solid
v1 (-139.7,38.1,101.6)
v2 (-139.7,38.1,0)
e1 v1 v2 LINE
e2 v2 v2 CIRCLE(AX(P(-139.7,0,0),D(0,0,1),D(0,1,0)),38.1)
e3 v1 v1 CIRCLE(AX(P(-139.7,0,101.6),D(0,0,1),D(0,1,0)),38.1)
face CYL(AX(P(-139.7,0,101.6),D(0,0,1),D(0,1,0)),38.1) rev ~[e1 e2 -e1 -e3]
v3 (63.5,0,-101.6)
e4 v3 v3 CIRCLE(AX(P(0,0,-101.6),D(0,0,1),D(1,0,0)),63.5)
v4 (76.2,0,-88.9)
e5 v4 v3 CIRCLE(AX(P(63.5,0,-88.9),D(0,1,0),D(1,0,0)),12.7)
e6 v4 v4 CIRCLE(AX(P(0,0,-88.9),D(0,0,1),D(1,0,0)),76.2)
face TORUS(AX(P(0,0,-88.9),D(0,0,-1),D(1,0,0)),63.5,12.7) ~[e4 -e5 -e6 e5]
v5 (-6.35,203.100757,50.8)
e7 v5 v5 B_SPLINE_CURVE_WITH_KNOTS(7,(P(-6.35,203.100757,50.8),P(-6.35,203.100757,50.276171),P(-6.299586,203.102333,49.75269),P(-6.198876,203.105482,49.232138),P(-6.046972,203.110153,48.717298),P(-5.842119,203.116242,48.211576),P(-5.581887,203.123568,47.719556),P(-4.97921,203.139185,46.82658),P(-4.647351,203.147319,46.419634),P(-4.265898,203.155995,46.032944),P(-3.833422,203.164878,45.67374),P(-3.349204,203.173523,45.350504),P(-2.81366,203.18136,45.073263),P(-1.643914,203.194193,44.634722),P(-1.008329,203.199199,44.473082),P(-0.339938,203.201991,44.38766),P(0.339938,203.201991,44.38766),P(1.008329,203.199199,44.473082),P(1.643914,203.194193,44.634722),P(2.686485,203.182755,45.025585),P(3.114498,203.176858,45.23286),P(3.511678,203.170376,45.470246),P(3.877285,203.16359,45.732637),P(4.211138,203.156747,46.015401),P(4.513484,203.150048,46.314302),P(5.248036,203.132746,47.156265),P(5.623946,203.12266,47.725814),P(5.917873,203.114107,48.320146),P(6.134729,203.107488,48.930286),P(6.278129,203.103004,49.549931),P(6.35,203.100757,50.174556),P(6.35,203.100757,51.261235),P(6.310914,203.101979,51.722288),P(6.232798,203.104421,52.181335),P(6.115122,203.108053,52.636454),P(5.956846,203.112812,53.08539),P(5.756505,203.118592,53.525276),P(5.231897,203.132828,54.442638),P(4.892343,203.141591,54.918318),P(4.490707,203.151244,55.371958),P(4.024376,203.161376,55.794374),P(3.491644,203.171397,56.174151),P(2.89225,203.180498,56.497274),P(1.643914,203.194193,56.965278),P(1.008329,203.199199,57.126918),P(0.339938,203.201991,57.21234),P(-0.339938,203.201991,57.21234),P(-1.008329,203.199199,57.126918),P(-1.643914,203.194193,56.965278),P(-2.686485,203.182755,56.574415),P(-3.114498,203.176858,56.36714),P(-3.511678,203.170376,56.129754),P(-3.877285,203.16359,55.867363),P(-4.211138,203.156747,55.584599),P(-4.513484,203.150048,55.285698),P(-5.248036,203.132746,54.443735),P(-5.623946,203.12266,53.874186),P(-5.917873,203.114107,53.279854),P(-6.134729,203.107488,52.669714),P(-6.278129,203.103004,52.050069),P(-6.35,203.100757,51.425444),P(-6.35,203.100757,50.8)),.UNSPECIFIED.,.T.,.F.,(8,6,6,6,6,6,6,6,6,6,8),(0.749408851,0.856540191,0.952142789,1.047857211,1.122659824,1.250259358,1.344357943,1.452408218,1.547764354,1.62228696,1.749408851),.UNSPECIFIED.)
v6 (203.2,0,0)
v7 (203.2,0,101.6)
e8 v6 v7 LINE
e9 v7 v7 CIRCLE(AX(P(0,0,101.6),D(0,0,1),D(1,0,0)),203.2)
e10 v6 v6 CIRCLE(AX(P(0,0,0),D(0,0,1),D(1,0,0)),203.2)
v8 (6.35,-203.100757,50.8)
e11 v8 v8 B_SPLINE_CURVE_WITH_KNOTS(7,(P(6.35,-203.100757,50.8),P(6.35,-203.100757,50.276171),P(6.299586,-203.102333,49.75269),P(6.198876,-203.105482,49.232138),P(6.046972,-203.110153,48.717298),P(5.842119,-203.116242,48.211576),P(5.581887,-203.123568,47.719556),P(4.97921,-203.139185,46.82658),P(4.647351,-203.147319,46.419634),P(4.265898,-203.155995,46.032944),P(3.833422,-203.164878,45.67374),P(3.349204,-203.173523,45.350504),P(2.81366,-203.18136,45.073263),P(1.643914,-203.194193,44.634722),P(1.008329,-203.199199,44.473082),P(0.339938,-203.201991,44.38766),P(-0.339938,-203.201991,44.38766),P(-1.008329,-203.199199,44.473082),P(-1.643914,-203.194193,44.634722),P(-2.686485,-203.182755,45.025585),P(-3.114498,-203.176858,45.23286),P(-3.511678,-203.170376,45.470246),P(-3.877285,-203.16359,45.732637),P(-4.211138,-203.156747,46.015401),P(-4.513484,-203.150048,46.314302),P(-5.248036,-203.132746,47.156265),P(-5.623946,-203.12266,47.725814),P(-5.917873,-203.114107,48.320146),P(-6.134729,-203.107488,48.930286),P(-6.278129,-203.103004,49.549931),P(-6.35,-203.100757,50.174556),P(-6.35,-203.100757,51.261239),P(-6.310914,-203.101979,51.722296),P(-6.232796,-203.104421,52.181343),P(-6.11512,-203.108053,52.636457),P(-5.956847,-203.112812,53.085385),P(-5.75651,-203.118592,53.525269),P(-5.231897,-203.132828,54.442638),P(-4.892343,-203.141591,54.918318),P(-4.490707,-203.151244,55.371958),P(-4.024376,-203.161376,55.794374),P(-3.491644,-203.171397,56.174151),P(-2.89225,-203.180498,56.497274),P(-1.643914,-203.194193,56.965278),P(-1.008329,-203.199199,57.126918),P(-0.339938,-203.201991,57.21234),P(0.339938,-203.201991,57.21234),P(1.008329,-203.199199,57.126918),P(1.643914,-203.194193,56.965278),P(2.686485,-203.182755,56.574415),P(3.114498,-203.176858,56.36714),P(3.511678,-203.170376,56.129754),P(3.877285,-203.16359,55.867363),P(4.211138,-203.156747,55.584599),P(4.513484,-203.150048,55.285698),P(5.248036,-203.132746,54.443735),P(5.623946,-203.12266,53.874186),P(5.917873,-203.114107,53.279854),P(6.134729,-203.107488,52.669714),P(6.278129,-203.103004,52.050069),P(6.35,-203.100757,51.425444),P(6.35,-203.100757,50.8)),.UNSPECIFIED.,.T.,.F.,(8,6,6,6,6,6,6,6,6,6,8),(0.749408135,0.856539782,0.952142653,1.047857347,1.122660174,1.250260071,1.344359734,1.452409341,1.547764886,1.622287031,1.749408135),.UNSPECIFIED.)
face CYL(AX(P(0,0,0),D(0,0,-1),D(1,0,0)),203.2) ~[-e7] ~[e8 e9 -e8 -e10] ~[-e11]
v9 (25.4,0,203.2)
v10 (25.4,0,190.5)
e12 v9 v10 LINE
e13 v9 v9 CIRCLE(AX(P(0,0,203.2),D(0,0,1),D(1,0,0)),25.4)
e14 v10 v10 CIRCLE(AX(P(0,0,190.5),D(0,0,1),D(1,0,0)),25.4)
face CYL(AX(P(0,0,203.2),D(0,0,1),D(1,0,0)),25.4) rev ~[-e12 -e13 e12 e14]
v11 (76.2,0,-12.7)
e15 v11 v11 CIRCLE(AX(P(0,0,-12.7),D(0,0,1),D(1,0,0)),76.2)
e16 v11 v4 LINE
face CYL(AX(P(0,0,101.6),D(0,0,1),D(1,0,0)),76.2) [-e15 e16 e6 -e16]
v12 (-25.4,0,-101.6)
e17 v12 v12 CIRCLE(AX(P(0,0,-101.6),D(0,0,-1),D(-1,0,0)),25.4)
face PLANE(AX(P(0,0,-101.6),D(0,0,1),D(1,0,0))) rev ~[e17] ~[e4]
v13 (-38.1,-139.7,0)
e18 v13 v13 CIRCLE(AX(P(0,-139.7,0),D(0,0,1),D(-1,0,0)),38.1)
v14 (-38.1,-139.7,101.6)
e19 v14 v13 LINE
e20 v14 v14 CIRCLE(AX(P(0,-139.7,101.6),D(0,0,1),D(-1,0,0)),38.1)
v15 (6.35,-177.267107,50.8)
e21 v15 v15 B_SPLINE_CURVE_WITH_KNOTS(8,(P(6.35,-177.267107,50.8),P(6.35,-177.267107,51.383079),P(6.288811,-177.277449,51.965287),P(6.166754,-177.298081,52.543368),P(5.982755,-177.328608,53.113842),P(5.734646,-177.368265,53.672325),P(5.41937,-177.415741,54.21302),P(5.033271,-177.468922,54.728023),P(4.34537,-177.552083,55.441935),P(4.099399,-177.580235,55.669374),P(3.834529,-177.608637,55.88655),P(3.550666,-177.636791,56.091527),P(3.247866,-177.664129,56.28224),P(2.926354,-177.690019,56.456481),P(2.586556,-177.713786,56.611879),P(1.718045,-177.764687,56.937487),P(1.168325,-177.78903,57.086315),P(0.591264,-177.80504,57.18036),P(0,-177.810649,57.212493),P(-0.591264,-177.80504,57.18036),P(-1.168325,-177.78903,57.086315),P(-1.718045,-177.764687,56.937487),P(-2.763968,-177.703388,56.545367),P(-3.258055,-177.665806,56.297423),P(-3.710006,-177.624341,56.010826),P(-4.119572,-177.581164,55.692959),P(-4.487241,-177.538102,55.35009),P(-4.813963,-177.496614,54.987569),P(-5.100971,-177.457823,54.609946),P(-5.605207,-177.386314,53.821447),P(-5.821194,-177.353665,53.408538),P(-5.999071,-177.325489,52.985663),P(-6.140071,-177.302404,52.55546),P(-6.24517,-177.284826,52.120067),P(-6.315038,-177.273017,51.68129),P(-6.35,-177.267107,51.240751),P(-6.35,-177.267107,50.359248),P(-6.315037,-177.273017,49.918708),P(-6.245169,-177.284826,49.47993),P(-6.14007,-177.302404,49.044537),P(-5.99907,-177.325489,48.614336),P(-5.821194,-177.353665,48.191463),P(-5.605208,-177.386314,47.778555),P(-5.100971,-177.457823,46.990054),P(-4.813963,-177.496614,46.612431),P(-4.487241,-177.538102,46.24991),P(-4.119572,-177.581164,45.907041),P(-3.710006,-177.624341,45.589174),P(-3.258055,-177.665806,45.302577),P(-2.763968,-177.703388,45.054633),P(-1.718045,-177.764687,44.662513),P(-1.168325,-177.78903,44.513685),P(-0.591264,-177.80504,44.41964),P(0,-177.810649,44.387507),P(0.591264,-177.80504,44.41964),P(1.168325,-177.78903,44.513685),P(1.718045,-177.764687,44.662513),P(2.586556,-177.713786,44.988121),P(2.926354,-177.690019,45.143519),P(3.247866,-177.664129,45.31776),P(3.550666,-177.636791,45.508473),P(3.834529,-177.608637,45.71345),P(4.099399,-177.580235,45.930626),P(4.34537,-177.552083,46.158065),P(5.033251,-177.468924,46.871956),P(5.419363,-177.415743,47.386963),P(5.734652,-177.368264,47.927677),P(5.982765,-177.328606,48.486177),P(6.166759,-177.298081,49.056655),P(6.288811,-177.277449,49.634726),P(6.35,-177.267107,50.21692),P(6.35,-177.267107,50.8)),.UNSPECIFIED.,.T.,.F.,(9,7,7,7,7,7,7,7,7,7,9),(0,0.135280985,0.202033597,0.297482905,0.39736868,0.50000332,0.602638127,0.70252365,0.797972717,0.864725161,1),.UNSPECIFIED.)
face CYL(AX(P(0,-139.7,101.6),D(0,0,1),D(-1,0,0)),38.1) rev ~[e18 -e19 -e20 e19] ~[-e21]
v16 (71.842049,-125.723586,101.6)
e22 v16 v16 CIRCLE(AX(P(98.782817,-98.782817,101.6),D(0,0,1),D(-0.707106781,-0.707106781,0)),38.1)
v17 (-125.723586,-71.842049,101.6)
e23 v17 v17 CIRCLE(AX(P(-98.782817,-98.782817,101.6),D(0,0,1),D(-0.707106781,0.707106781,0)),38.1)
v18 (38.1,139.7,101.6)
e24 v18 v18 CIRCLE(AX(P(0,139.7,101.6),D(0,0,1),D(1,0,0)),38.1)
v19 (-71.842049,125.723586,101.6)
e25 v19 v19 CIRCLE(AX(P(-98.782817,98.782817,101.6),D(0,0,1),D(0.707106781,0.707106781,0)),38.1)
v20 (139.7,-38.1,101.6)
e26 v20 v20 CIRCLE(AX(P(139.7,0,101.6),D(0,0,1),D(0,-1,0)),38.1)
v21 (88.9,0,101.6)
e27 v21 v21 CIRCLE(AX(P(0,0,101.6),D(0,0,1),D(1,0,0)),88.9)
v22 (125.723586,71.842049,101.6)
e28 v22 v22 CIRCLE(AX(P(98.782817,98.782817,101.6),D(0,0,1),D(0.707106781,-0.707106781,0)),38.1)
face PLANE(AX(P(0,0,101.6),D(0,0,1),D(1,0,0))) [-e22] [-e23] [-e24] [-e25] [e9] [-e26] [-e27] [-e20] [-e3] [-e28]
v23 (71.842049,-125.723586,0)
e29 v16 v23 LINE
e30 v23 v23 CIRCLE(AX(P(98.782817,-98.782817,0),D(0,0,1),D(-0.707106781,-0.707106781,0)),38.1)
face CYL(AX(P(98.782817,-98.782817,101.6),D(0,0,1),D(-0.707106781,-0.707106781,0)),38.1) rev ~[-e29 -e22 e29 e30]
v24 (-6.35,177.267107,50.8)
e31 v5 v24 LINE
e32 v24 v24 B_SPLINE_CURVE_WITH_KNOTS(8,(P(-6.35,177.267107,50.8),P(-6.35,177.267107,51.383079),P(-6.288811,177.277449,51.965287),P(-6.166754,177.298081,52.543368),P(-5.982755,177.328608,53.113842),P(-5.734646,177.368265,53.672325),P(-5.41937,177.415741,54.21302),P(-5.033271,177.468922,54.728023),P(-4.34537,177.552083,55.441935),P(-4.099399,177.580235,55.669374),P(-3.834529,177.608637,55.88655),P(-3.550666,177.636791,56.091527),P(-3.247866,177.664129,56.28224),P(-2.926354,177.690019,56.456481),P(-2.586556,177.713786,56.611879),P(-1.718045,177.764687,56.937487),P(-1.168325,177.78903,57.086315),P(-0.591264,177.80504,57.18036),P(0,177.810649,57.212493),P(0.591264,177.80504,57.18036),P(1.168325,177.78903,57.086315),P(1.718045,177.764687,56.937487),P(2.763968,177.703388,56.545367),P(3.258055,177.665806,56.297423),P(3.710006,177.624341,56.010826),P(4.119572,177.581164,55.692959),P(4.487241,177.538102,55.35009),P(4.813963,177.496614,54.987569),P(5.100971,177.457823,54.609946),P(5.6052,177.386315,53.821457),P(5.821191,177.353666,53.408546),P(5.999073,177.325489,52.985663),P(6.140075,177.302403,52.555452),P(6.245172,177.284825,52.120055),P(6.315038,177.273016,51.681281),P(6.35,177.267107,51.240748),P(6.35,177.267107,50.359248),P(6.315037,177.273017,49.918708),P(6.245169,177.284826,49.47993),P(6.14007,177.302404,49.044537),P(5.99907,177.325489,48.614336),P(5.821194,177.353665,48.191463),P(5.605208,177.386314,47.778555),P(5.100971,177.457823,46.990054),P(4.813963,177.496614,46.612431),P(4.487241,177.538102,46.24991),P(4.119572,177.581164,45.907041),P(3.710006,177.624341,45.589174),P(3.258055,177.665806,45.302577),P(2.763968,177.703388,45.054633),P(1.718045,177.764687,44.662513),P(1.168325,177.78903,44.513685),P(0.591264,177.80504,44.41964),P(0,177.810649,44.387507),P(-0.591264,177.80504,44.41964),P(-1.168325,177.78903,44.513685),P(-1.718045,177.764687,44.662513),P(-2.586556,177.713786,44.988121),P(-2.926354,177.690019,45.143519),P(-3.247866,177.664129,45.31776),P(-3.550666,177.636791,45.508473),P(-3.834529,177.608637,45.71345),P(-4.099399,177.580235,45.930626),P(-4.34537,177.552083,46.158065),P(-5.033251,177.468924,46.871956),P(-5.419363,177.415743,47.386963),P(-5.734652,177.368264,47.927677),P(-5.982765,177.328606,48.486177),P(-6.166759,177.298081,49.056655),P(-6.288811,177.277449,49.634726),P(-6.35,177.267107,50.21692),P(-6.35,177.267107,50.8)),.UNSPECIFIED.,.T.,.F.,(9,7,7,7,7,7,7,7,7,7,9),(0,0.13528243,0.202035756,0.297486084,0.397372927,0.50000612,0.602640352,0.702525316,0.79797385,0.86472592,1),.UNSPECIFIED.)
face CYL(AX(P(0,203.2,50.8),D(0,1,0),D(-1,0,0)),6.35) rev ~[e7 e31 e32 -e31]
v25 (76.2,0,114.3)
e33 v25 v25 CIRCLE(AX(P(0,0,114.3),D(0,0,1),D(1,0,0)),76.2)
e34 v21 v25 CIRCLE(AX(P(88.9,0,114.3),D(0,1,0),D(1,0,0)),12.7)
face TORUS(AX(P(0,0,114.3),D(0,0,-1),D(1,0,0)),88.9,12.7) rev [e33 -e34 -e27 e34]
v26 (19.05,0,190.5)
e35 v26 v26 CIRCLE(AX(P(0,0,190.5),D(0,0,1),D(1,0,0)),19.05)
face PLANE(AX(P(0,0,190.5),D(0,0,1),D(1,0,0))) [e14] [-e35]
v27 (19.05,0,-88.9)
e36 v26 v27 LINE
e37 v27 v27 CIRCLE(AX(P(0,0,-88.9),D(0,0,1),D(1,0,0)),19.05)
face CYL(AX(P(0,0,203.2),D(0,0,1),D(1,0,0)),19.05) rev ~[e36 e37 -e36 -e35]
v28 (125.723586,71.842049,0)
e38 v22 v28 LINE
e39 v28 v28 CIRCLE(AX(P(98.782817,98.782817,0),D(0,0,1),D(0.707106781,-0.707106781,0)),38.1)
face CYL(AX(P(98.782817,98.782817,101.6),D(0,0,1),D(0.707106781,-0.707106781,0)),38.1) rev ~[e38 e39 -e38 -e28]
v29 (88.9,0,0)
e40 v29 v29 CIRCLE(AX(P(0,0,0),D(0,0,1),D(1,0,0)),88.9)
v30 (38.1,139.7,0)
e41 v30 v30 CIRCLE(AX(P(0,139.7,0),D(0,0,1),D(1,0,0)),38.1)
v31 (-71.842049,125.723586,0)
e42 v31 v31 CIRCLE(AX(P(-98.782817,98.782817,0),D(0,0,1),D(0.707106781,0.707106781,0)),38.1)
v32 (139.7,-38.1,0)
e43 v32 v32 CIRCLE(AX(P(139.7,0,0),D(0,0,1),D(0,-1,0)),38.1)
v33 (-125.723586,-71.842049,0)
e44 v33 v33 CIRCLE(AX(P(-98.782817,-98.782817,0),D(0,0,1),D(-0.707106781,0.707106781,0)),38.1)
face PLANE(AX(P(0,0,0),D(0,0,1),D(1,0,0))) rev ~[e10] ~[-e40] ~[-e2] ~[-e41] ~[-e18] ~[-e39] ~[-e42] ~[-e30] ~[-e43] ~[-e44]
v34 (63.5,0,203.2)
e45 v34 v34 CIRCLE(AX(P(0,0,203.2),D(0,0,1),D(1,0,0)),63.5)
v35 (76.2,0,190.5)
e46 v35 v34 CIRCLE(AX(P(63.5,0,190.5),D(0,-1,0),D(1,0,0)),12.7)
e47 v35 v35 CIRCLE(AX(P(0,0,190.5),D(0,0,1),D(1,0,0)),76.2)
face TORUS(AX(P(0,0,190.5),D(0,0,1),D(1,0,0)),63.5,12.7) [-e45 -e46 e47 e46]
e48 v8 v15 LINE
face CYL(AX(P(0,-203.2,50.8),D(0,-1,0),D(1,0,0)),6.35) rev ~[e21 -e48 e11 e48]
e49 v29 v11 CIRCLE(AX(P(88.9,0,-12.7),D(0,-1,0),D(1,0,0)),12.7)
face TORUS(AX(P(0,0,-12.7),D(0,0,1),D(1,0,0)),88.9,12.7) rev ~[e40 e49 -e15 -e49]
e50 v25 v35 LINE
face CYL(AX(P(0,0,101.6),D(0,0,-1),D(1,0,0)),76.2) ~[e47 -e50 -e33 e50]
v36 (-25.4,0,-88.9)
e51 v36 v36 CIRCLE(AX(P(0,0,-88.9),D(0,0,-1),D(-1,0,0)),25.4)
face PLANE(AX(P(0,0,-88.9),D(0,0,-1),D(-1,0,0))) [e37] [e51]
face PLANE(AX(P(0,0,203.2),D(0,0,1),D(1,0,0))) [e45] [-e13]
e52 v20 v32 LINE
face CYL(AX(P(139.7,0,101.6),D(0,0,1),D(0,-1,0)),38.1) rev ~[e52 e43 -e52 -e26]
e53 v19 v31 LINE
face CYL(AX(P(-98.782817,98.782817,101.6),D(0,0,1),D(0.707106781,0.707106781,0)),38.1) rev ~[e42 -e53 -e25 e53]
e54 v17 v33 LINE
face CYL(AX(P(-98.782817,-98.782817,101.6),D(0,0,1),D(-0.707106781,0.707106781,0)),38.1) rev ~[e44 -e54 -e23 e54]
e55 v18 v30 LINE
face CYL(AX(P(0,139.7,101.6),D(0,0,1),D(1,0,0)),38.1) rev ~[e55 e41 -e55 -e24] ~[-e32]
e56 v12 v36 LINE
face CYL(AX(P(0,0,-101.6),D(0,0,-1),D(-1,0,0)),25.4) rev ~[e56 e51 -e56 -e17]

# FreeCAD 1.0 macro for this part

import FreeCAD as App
import Part
import Sketcher
Q = App.Units.Quantity


def edges_at(feature, points):
    """Names of the edges that pass closest to the given points."""
    edges = feature.Shape.Edges
    near = lambda p: min(range(len(edges)), key=lambda i: edges[i].distToShape(Part.Vertex(*p))[0])
    return sorted({f"Edge{near(p) + 1}" for p in points})

doc = App.newDocument("Part")
body = doc.addObject("PartDesign::Body", "Body")

sketch1 = body.newObject("Sketcher::SketchObject", "Sketch")
sketch1.AttachmentSupport = (doc.getObject("XY_Plane"), [""])
sketch1.MapMode = "FlatFace"
sketch1.addGeometry(Part.Circle(App.Vector(0, 0, 0), App.Vector(0, 0, 1), 203), False)
sketch1.addConstraint([
    Sketcher.Constraint("Coincident", 0, 3, -1, 1),
    Sketcher.Constraint("Diameter", 0, Q("16 in")),
])
pad1 = body.newObject("PartDesign::Pad", "Pad")
pad1.Profile = sketch1
pad1.Length = Q("4 in")

sketch2 = body.newObject("Sketcher::SketchObject", "Sketch001")
sketch2.AttachmentSupport = (doc.getObject("XY_Plane"), [""])
sketch2.MapMode = "FlatFace"
sketch2.AttachmentOffset = App.Placement(App.Vector(0, 0, 4 * 25.4), App.Rotation())
sketch2.addGeometry(Part.Circle(App.Vector(0, 0, 0), App.Vector(0, 0, 1), 76), False)
sketch2.addConstraint([
    Sketcher.Constraint("Coincident", 0, 3, -1, 1),
    Sketcher.Constraint("Diameter", 0, Q("6 in")),
])
pad2 = body.newObject("PartDesign::Pad", "Pad001")
pad2.Profile = sketch2
pad2.Type = "TwoLengths"
pad2.Length = Q("4 in")
pad2.Length2 = Q("8 in")

sketch3 = body.newObject("Sketcher::SketchObject", "Sketch002")
sketch3.AttachmentSupport = (doc.getObject("XY_Plane"), [""])
sketch3.MapMode = "FlatFace"
sketch3.AttachmentOffset = App.Placement(App.Vector(0, 0, 8 * 25.4), App.Rotation())
sketch3.addGeometry(Part.Circle(App.Vector(0, 0, 0), App.Vector(0, 0, 1), 19), False)
sketch3.addConstraint([
    Sketcher.Constraint("Coincident", 0, 3, -1, 1),
    Sketcher.Constraint("Diameter", 0, Q("1.5 in")),
])
pocket1 = body.newObject("PartDesign::Pocket", "Pocket")
pocket1.Profile = sketch3
pocket1.Type = "ThroughAll"

sketch4 = body.newObject("Sketcher::SketchObject", "Sketch003")
sketch4.AttachmentSupport = (doc.getObject("XY_Plane"), [""])
sketch4.MapMode = "FlatFace"
sketch4.AttachmentOffset = App.Placement(App.Vector(0, 0, 4 * 25.4), App.Rotation())
sketch4.addGeometry(Part.Circle(App.Vector(0, 140, 0), App.Vector(0, 0, 1), 38), False)
sketch4.addConstraint([
    Sketcher.Constraint("PointOnObject", 0, 3, -2),
    Sketcher.Constraint("Diameter", 0, Q("3 in")),
    Sketcher.Constraint("DistanceY", -1, 1, 0, 3, Q("5.5 in")),
])
pocket2 = body.newObject("PartDesign::Pocket", "Pocket001")
pocket2.Profile = sketch4
pocket2.Length = Q("4 in")
doc.recompute()

polarpattern = body.newObject("PartDesign::PolarPattern", "PolarPattern")
polarpattern.Originals = [pocket2]
polarpattern.Axis = (doc.getObject("Z_Axis"), [""])
polarpattern.Angle = 360
polarpattern.Occurrences = 8
body.Tip = polarpattern
doc.recompute()

fillet = body.newObject("PartDesign::Fillet", "Fillet")
fillet.Base = (polarpattern, edges_at(polarpattern, [(-76.2, 0, 101.6)]))
fillet.Radius = Q("0.5 in")
doc.recompute()

fillet2 = body.newObject("PartDesign::Fillet", "Fillet001")
fillet2.Base = (fillet, edges_at(fillet, [(-76.2, 0, 0), (-76.2, 0, -101.6), (-76.2, 0, 203.2)]))
fillet2.Radius = Q("0.5 in")

sketch5 = body.newObject("Sketcher::SketchObject", "Sketch004")
sketch5.AttachmentSupport = (doc.getObject("XZ_Plane"), [""])
sketch5.MapMode = "FlatFace"
sketch5.AttachmentOffset = App.Placement(App.Vector(0, 0, -8 * 25.4), App.Rotation())
sketch5.addGeometry(Part.Circle(App.Vector(0, 51, 0), App.Vector(0, 0, 1), 6), False)
sketch5.addConstraint([
    Sketcher.Constraint("PointOnObject", 0, 3, -2),
    Sketcher.Constraint("Diameter", 0, Q("0.5 in")),
    Sketcher.Constraint("DistanceY", -1, 1, 0, 3, Q("2 in")),
])
pocket3 = body.newObject("PartDesign::Pocket", "Pocket002")
pocket3.Profile = sketch5
pocket3.Type = "UpToFirst"
pocket3.Reversed = True

sketch6 = body.newObject("Sketcher::SketchObject", "Sketch005")
sketch6.AttachmentSupport = (doc.getObject("XZ_Plane"), [""])
sketch6.MapMode = "FlatFace"
sketch6.AttachmentOffset = App.Placement(App.Vector(0, 0, 8 * 25.4), App.Rotation())
sketch6.addGeometry(Part.Circle(App.Vector(0, 51, 0), App.Vector(0, 0, 1), 6), False)
sketch6.addConstraint([
    Sketcher.Constraint("PointOnObject", 0, 3, -2),
    Sketcher.Constraint("Diameter", 0, Q("0.5 in")),
    Sketcher.Constraint("DistanceY", -1, 1, 0, 3, Q("2 in")),
])
pocket4 = body.newObject("PartDesign::Pocket", "Pocket003")
pocket4.Profile = sketch6
pocket4.Type = "UpToFirst"

sketch7 = body.newObject("Sketcher::SketchObject", "Sketch006")
sketch7.AttachmentSupport = (doc.getObject("XY_Plane"), [""])
sketch7.MapMode = "FlatFace"
sketch7.AttachmentOffset = App.Placement(App.Vector(0, 0, 8 * 25.4), App.Rotation())
sketch7.addGeometry(Part.Circle(App.Vector(0, 0, 0), App.Vector(0, 0, 1), 25), False)
sketch7.addConstraint([
    Sketcher.Constraint("Coincident", 0, 3, -1, 1),
    Sketcher.Constraint("Diameter", 0, Q("2 in")),
])
pocket5 = body.newObject("PartDesign::Pocket", "Pocket004")
pocket5.Profile = sketch7
pocket5.Length = Q("0.5 in")

sketch8 = body.newObject("Sketcher::SketchObject", "Sketch007")
sketch8.AttachmentSupport = (doc.getObject("XY_Plane"), [""])
sketch8.MapMode = "FlatFace"
sketch8.AttachmentOffset = App.Placement(App.Vector(0, 0, -4 * 25.4), App.Rotation())
sketch8.addGeometry(Part.Circle(App.Vector(0, 0, 0), App.Vector(0, 0, 1), 25), False)
sketch8.addConstraint([
    Sketcher.Constraint("Coincident", 0, 3, -1, 1),
    Sketcher.Constraint("Diameter", 0, Q("2 in")),
])
pocket6 = body.newObject("PartDesign::Pocket", "Pocket005")
pocket6.Profile = sketch8
pocket6.Length = Q("0.5 in")
pocket6.Reversed = True

doc.recompute()
